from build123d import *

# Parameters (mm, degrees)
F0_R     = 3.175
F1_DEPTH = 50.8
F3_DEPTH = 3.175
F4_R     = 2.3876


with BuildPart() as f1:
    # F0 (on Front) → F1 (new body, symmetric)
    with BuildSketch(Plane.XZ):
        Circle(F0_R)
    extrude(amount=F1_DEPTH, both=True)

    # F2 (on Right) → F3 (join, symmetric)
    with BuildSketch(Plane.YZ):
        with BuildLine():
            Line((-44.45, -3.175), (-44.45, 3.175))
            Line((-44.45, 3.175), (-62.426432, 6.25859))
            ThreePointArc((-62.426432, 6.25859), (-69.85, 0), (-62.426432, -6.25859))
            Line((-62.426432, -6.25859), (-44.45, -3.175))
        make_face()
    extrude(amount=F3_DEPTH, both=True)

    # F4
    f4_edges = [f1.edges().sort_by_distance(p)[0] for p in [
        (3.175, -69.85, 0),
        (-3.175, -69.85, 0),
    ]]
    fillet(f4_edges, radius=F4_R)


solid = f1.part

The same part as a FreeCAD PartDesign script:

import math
import FreeCAD as App
import Part
import Sketcher
Q = App.Units.Quantity


def edges_at(feature, points):
    """Names of the edges that pass closest to the given points."""
    edges = feature.Shape.Edges
    near = lambda p: min(range(len(edges)), key=lambda i: edges[i].distToShape(Part.Vertex(*p))[0])
    return sorted({f"Edge{near(p) + 1}" for p in points})

doc = App.newDocument("Part")
body = doc.addObject("PartDesign::Body", "Body")

# Sketch on XZ plane
sketch1 = body.newObject("Sketcher::SketchObject", "Sketch")
sketch1.AttachmentSupport = (doc.getObject("XZ_Plane"), [""])
sketch1.MapMode = "FlatFace"
sketch1.addGeometry(Part.Circle(App.Vector(0, 0, 0), App.Vector(0, 0, 1), 3.2), False)
sketch1.addConstraint([
    Sketcher.Constraint("Coincident", 0, 3, -1, 1),
    Sketcher.Constraint("Diameter", 0, Q("0.25 in")),
])
pad1 = body.newObject("PartDesign::Pad", "Pad")
pad1.Profile = sketch1
pad1.Length = Q("4 in")
pad1.Midplane = True

# Sketch on YZ plane
sketch2 = body.newObject("Sketcher::SketchObject", "Sketch001")
sketch2.AttachmentSupport = (doc.getObject("YZ_Plane"), [""])
sketch2.MapMode = "FlatFace"
sketch2.addGeometry([
    Part.LineSegment(App.Vector(-44, -3, 0), App.Vector(-44, 3, 0)),
    Part.LineSegment(App.Vector(-44, 3, 0), App.Vector(-62, 6, 0)),
    Part.ArcOfCircle(Part.Circle(App.Vector(-64, 0, 0), App.Vector(0, 0, 1), 6), math.radians(80), math.radians(280)),
    Part.LineSegment(App.Vector(-62, -6, 0), App.Vector(-44, -3, 0)),
], False)
sketch2.addConstraint([
    Sketcher.Constraint("Coincident", 0, 2, 1, 1),
    Sketcher.Constraint("Tangent", 1, 2, 2, 1),
    Sketcher.Constraint("Tangent", 2, 2, 3, 1),
    Sketcher.Constraint("Coincident", 3, 2, 0, 1),
    Sketcher.Constraint("Vertical", 0),
    Sketcher.Constraint("Symmetric", 1, 2, 2, 2, -1),
    Sketcher.Constraint("Radius", 2, Q("0.25 in")),
    Sketcher.Constraint("DistanceY", 0, 1, 0, 2, Q("0.25 in")),
    Sketcher.Constraint("DistanceX", 2, 3, -1, 1, Q("2.5 in")),
    Sketcher.Constraint("DistanceX", 0, 2, -1, 1, Q("1.75 in")),
])
pad2 = body.newObject("PartDesign::Pad", "Pad001")
pad2.Profile = sketch2
pad2.Length = Q("0.25 in")
pad2.Midplane = True
doc.recompute()

fillet = body.newObject("PartDesign::Fillet", "Fillet")
fillet.Base = (pad2, edges_at(pad2, [(3.175, -69.85, 0), (-3.175, -69.85, 0)]))
fillet.Radius = Q("0.094 in")

doc.recompute()
